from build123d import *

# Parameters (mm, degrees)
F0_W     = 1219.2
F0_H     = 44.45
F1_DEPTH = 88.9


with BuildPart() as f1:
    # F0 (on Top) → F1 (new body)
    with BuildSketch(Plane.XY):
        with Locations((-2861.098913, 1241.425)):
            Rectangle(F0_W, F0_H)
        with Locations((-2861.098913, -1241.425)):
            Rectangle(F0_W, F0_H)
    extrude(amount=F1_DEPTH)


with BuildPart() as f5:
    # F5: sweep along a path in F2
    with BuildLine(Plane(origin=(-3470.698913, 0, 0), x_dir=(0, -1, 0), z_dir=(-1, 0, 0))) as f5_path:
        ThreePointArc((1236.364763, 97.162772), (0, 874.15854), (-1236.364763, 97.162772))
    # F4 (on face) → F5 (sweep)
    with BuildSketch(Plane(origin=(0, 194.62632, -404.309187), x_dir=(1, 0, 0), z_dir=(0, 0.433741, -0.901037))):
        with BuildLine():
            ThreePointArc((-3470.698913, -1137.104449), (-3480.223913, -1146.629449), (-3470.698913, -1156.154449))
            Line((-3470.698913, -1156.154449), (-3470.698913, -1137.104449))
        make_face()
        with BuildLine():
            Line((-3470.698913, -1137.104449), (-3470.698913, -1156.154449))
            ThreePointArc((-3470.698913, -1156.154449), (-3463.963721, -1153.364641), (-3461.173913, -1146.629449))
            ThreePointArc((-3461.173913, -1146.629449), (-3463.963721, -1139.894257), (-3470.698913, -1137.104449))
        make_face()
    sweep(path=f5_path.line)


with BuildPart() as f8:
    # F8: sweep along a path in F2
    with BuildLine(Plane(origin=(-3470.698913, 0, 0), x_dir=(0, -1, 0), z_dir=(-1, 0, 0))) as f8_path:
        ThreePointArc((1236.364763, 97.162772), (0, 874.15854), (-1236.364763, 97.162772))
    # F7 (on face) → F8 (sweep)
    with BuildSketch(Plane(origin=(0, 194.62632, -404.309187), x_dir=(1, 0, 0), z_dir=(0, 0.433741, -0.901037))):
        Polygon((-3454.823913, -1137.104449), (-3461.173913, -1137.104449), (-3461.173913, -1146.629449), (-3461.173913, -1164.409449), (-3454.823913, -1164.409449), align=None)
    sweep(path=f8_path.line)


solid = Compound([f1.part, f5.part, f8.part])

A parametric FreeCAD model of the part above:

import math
import FreeCAD as App
import Part
import Sketcher

V = App.Vector
Q = App.Units.Quantity

doc = App.newDocument("Part")
body = doc.addObject("PartDesign::Body", "Body")
body.AllowCompound = True

sketch1 = body.newObject("Sketcher::SketchObject", "Sketch")
sketch1.AttachmentSupport = (doc.getObject("XY_Plane"), [""])
sketch1.MapMode = "FlatFace"
sketch1.addGeometry([
    Part.LineSegment(V(-3471, 1264, 0), V(-3471, 1219, 0)),
    Part.LineSegment(V(-3471, 1219, 0), V(-2251, 1219, 0)),
    Part.LineSegment(V(-2251, 1219, 0), V(-2251, 1264, 0)),
    Part.LineSegment(V(-2251, 1264, 0), V(-3471, 1264, 0)),
    Part.LineSegment(V(-3471, -1219, 0), V(-3471, -1264, 0)),
    Part.LineSegment(V(-3471, -1264, 0), V(-2251, -1264, 0)),
    Part.LineSegment(V(-2251, -1264, 0), V(-2251, -1219, 0)),
    Part.LineSegment(V(-2251, -1219, 0), V(-3471, -1219, 0)),
], False)
sketch1.addConstraint([
    Sketcher.Constraint("Coincident", 0, 2, 1, 1),
    Sketcher.Constraint("Coincident", 1, 2, 2, 1),
    Sketcher.Constraint("Coincident", 2, 2, 3, 1),
    Sketcher.Constraint("Coincident", 3, 2, 0, 1),
    Sketcher.Constraint("Coincident", 4, 2, 5, 1),
    Sketcher.Constraint("Coincident", 5, 2, 6, 1),
    Sketcher.Constraint("Coincident", 6, 2, 7, 1),
    Sketcher.Constraint("Coincident", 7, 2, 4, 1),
    Sketcher.Constraint("Vertical", 0),
    Sketcher.Constraint("Horizontal", 1),
    Sketcher.Constraint("Vertical", 2),
    Sketcher.Constraint("Horizontal", 3),
    Sketcher.Constraint("Vertical", 4),
    Sketcher.Constraint("Horizontal", 5),
    Sketcher.Constraint("Vertical", 6),
    Sketcher.Constraint("Horizontal", 7),
    Sketcher.Constraint("Symmetric", 3, 2, 4, 2, -1),
    Sketcher.Constraint("Symmetric", 1, 2, 6, 2, -1),
    Sketcher.Constraint("DistanceX", 1, 1, 1, 2, Q("48 in")),
    Sketcher.Constraint("DistanceY", -1, 1, 0, 2, Q("48 in")),
    Sketcher.Constraint("DistanceY", 0, 2, 0, 1, Q("1.75 in")),
    Sketcher.Constraint("DistanceX", 0, 2, -1, 1, 3470.698913),
])
pad1 = body.newObject("PartDesign::Pad", "Pad")
pad1.Profile = sketch1
pad1.Length = Q("3.5 in")
body2 = doc.addObject("PartDesign::Body", "Body001")

sketch2 = body2.newObject("Sketcher::SketchObject", "Sketch001")
sketch2.Placement = App.Placement(V(0, 194.62632, -404.309187), App.Rotation(V(1, 0, 0), V(0, -0.901037482, -0.433741232), V(0, 0.433741232, -0.901037482), "ZXY"))
sketch2.addGeometry([
    Part.ArcOfCircle(Part.Circle(V(-3471, -1147, 0), V(0, 0, 1), 10), math.radians(90), math.radians(270)),
    Part.ArcOfCircle(Part.Circle(V(-3471, -1147, 0), V(0, 0, 1), 10), math.radians(-90), math.radians(0)),
    Part.ArcOfCircle(Part.Circle(V(-3471, -1147, 0), V(0, 0, 1), 10), math.radians(0), math.radians(90)),
], False)
sketch2.addConstraint([
    Sketcher.Constraint("Tangent", 0, 2, 1, 1),
    Sketcher.Constraint("Tangent", 1, 2, 2, 1),
    Sketcher.Constraint("Tangent", 2, 2, 0, 1),
    Sketcher.Constraint("Horizontal", 2, 3, 1, 2),
    Sketcher.Constraint("Vertical", 2, 3, 0, 2),
    Sketcher.Constraint("Vertical", 0, 2, 2, 2),
    Sketcher.Constraint("Radius", 0, Q("0.375 in")),
    Sketcher.Constraint("DistanceY", 0, 3, -1, 1, 1146.629449),
    Sketcher.Constraint("DistanceX", 0, 3, -1, 1, 3470.698913),
])

sketch3 = body2.newObject("Sketcher::SketchObject", "Sketch002")
sketch3.AttachmentSupport = (doc.getObject("YZ_Plane001"), [""])
sketch3.MapMode = "FlatFace"
sketch3.AttachmentOffset = App.Placement(V(0, 0, -3470.698913), App.Rotation())
sketch3.addGeometry(Part.ArcOfCircle(Part.Circle(V(0, -498, 0), V(0, 0, 1), 1372), math.radians(26), math.radians(154)), False)
sketch3.addConstraint([
    Sketcher.Constraint("Symmetric", 0, 1, 0, 2, -2),
    Sketcher.Constraint("Radius", 0, 1372.156927),
    Sketcher.Constraint("DistanceY", -1, 1, 0, 1, 97.162772),
    Sketcher.Constraint("DistanceY", 0, 3, -1, 1, 497.998387),
])
doc.recompute()

additivepipe = body2.newObject("PartDesign::AdditivePipe", "AdditivePipe")
additivepipe.Profile = sketch2
additivepipe.Spine = (sketch3, ["Edge1"])
body3 = doc.addObject("PartDesign::Body", "Body002")

sketch4 = body3.newObject("Sketcher::SketchObject", "Sketch003")
sketch4.Placement = App.Placement(V(0, 194.62632, -404.309187), App.Rotation(V(1, 0, 0), V(0, -0.901037482, -0.433741232), V(0, 0.433741232, -0.901037482), "ZXY"))
sketch4.addGeometry([
    Part.LineSegment(V(-3455, -1137, 0), V(-3461, -1137, 0)),
    Part.LineSegment(V(-3461, -1137, 0), V(-3461, -1164, 0)),
    Part.LineSegment(V(-3461, -1164, 0), V(-3455, -1164, 0)),
    Part.LineSegment(V(-3455, -1164, 0), V(-3455, -1137, 0)),
], False)
sketch4.addConstraint([
    Sketcher.Constraint("Coincident", 0, 2, 1, 1),
    Sketcher.Constraint("Coincident", 1, 2, 2, 1),
    Sketcher.Constraint("Coincident", 2, 2, 3, 1),
    Sketcher.Constraint("Coincident", 3, 2, 0, 1),
    Sketcher.Constraint("Horizontal", 0),
    Sketcher.Constraint("Vertical", 1),
    Sketcher.Constraint("Horizontal", 2),
    Sketcher.Constraint("Vertical", 3),
    Sketcher.Constraint("DistanceX", 0, 2, 0, 1, Q("0.25 in")),
    Sketcher.Constraint("DistanceY", 1, 2, 1, 1, Q("1.075 in")),
    Sketcher.Constraint("DistanceY", 0, 2, -1, 1, 1137.104449),
    Sketcher.Constraint("DistanceX", 0, 2, -1, 1, 3461.173913),
])

sketch5 = body3.newObject("Sketcher::SketchObject", "Sketch004")
sketch5.AttachmentSupport = (doc.getObject("YZ_Plane002"), [""])
sketch5.MapMode = "FlatFace"
sketch5.AttachmentOffset = App.Placement(V(0, 0, -3470.698913), App.Rotation())
sketch5.addGeometry(Part.ArcOfCircle(Part.Circle(V(0, -498, 0), V(0, 0, 1), 1372), math.radians(26), math.radians(154)), False)
sketch5.addConstraint([
    Sketcher.Constraint("Symmetric", 0, 1, 0, 2, -2),
    Sketcher.Constraint("Radius", 0, 1372.156927),
    Sketcher.Constraint("DistanceY", -1, 1, 0, 1, 97.162772),
    Sketcher.Constraint("DistanceY", 0, 3, -1, 1, 497.998387),
])
doc.recompute()

additivepipe2 = body3.newObject("PartDesign::AdditivePipe", "AdditivePipe001")
additivepipe2.Profile = sketch4
additivepipe2.Spine = (sketch5, ["Edge1"])

doc.recompute()
